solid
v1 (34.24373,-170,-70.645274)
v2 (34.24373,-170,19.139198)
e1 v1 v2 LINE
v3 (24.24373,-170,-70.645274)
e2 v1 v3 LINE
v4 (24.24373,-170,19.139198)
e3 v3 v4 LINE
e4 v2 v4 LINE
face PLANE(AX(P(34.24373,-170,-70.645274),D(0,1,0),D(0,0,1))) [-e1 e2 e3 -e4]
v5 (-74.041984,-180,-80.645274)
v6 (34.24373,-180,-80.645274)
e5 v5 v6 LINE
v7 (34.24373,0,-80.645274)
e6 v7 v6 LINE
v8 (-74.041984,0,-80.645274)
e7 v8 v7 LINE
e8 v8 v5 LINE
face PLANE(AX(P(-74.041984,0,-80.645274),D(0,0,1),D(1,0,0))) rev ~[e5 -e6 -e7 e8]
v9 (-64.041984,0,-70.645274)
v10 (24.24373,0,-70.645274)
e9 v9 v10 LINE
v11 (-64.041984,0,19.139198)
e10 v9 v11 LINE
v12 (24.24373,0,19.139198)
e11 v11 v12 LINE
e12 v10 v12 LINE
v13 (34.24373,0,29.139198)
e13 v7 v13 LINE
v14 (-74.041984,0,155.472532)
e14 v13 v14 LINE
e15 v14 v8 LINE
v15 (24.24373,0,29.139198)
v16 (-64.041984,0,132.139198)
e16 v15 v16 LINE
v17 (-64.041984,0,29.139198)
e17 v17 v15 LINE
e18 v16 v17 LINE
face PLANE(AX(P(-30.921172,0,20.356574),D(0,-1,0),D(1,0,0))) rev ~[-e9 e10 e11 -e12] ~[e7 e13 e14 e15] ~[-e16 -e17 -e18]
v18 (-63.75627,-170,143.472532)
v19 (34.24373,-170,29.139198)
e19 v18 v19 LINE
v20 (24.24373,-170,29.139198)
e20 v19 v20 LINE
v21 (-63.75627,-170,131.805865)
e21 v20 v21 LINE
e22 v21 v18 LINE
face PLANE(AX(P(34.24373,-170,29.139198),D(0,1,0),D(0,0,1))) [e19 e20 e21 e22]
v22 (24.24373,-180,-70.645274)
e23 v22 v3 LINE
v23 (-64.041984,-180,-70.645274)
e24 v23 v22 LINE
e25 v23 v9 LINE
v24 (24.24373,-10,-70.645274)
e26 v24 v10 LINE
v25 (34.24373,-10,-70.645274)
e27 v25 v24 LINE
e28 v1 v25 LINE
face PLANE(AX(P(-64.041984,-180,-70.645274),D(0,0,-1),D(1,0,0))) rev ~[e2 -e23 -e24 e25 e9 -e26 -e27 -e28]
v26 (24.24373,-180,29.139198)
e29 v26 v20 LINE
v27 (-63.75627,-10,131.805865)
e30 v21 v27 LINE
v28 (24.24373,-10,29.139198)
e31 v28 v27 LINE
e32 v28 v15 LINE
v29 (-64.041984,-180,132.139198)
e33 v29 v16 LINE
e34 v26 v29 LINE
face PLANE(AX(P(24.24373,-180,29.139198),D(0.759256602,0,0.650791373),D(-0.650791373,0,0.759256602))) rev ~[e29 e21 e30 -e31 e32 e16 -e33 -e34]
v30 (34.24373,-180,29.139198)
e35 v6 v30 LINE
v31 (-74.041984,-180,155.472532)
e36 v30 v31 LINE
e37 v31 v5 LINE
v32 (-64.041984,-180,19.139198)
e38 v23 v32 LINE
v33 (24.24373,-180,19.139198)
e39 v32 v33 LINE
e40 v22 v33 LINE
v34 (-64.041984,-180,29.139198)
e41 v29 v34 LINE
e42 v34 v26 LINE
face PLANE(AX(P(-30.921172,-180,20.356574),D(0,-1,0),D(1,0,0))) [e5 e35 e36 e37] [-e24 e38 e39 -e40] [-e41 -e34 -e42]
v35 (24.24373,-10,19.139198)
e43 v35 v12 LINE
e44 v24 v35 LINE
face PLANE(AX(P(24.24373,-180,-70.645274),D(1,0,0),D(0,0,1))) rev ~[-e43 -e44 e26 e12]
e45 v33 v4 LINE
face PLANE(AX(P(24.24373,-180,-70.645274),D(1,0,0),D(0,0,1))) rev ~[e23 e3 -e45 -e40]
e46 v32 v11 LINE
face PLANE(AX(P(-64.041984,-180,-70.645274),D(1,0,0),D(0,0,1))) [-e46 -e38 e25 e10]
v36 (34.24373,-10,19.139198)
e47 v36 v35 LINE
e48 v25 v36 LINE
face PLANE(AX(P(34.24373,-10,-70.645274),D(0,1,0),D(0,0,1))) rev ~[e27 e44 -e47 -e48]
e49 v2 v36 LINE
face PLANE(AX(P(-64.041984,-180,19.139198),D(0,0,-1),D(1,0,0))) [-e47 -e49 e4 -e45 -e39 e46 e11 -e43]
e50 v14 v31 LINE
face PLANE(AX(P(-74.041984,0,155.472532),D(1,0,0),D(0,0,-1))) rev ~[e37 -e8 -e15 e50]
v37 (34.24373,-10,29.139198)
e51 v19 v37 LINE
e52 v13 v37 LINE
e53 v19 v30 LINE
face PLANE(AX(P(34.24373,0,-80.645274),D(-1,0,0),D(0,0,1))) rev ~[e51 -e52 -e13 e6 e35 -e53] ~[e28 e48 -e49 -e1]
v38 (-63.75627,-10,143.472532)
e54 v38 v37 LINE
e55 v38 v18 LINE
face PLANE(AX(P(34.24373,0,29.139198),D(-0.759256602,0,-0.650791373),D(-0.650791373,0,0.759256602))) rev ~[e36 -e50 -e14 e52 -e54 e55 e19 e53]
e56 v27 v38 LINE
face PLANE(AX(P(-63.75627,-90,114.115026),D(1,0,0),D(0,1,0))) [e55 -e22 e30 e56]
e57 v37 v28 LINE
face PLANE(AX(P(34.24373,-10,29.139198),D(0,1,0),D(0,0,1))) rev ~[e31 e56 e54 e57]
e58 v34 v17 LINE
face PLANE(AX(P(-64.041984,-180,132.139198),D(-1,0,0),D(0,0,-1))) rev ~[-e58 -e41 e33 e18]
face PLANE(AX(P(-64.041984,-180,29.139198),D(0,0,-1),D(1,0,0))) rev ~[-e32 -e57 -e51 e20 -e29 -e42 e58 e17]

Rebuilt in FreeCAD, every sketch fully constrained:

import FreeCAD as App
import Part
import Sketcher

V = App.Vector

doc = App.newDocument("Part")
params = doc.addObject("Spreadsheet::Sheet", "Params")
for row, (alias, value) in enumerate([
    ("pad1_length", "180 mm"),
    ("sketch2_height", "103 mm"),
    ("pocket1_length", "294 mm"),
    ("sketch3_width", "160 mm"),
    ("pocket2_length", "98 mm"),
], start=1):
    params.set(f"A{row}", alias)
    params.set(f"B{row}", "=" + value)
    params.setAlias(f"B{row}", alias)

body = doc.addObject("PartDesign::Body", "Body")

sketch1 = body.newObject("Sketcher::SketchObject", "Sketch")
sketch1.AttachmentSupport = (doc.getObject("XZ_Plane"), [""])
sketch1.MapMode = "FlatFace"
sketch1.addGeometry([
    Part.LineSegment(V(-74, 155, 0), V(-74, -81, 0)),
    Part.LineSegment(V(-74, -81, 0), V(34, -81, 0)),
    Part.LineSegment(V(34, -81, 0), V(34, 29, 0)),
    Part.LineSegment(V(34, 29, 0), V(-74, 155, 0)),
], False)
sketch1.addConstraint([
    Sketcher.Constraint("Coincident", 0, 2, 1, 1),
    Sketcher.Constraint("Coincident", 1, 2, 2, 1),
    Sketcher.Constraint("Coincident", 2, 2, 3, 1),
    Sketcher.Constraint("Coincident", 3, 2, 0, 1),
    Sketcher.Constraint("Vertical", 0),
    Sketcher.Constraint("Horizontal", 1),
    Sketcher.Constraint("Vertical", 2),
    Sketcher.Constraint("DistanceY", -1, 1, 2, 2, 29.139198),
    Sketcher.Constraint("DistanceX", 1, 1, 1, 2, 108.285714),
    Sketcher.Constraint("DistanceY", 0, 2, 0, 1, 236.117806),
    Sketcher.Constraint("DistanceY", 2, 1, 2, 2, 109.784472),
    Sketcher.Constraint("DistanceX", -1, 1, 1, 2, 34.24373),
])
pad1 = body.newObject("PartDesign::Pad", "Pad")
pad1.Profile = sketch1
pad1.setExpression("Length", "Params.pad1_length")

sketch2 = body.newObject("Sketcher::SketchObject", "Sketch001")
sketch2.AttachmentSupport = (doc.getObject("XZ_Plane"), [""])
sketch2.MapMode = "FlatFace"
sketch2.AttachmentOffset = App.Placement(V(0, 0, 180), App.Rotation())
sketch2.addGeometry([
    Part.LineSegment(V(-64, 132, 0), V(-64, 29, 0)),
    Part.LineSegment(V(-64, 29, 0), V(24, 29, 0)),
    Part.LineSegment(V(24, 29, 0), V(-64, 132, 0)),
    Part.LineSegment(V(-64, 19, 0), V(-64, -71, 0)),
    Part.LineSegment(V(-64, -71, 0), V(24, -71, 0)),
    Part.LineSegment(V(24, -71, 0), V(24, 19, 0)),
    Part.LineSegment(V(24, 19, 0), V(-64, 19, 0)),
], False)
sketch2.addConstraint([
    Sketcher.Constraint("Coincident", 0, 2, 1, 1),
    Sketcher.Constraint("Coincident", 1, 2, 2, 1),
    Sketcher.Constraint("Coincident", 2, 2, 0, 1),
    Sketcher.Constraint("Coincident", 3, 2, 4, 1),
    Sketcher.Constraint("Coincident", 4, 2, 5, 1),
    Sketcher.Constraint("Coincident", 5, 2, 6, 1),
    Sketcher.Constraint("Coincident", 6, 2, 3, 1),
    Sketcher.Constraint("Vertical", 0),
    Sketcher.Constraint("Horizontal", 1),
    Sketcher.Constraint("Vertical", 3),
    Sketcher.Constraint("Horizontal", 4),
    Sketcher.Constraint("Vertical", 5),
    Sketcher.Constraint("Horizontal", 6),
    Sketcher.Constraint("Vertical", 2, 2, 3, 2),
    Sketcher.Constraint("Vertical", 1, 2, 4, 2),
    Sketcher.Constraint("DistanceY", 0, 2, 0, 1, 103.0),
    Sketcher.Constraint("DistanceY", 5, 2, 1, 2, 10.0),
    Sketcher.Constraint("DistanceY", -1, 1, 0, 2, 29.139198),
    Sketcher.Constraint("Distance", 2, 135.659011),
    Sketcher.Constraint("DistanceY", 3, 2, 3, 1, 89.784472),
    Sketcher.Constraint("DistanceX", -1, 1, 1, 2, 24.24373),
])
sketch2.setExpression("Constraints[15]", "Params.sketch2_height")
pocket1 = body.newObject("PartDesign::Pocket", "Pocket")
pocket1.Profile = sketch2
pocket1.setExpression("Length", "Params.pocket1_length")

sketch3 = body.newObject("Sketcher::SketchObject", "Sketch002")
sketch3.AttachmentSupport = (doc.getObject("YZ_Plane"), [""])
sketch3.MapMode = "FlatFace"
sketch3.AttachmentOffset = App.Placement(V(0, 0, 34.24373), App.Rotation())
sketch3.addGeometry([
    Part.LineSegment(V(-170, 19, 0), V(-170, -71, 0)),
    Part.LineSegment(V(-170, -71, 0), V(-10, -71, 0)),
    Part.LineSegment(V(-10, -71, 0), V(-10, 19, 0)),
    Part.LineSegment(V(-10, 19, 0), V(-170, 19, 0)),
    Part.LineSegment(V(-170, 199, 0), V(-170, 29, 0)),
    Part.LineSegment(V(-170, 29, 0), V(-10, 29, 0)),
    Part.LineSegment(V(-10, 29, 0), V(-10, 199, 0)),
    Part.LineSegment(V(-10, 199, 0), V(-170, 199, 0)),
], False)
sketch3.addConstraint([
    Sketcher.Constraint("Coincident", 0, 2, 1, 1),
    Sketcher.Constraint("Coincident", 1, 2, 2, 1),
    Sketcher.Constraint("Coincident", 2, 2, 3, 1),
    Sketcher.Constraint("Coincident", 3, 2, 0, 1),
    Sketcher.Constraint("Coincident", 4, 2, 5, 1),
    Sketcher.Constraint("Coincident", 5, 2, 6, 1),
    Sketcher.Constraint("Coincident", 6, 2, 7, 1),
    Sketcher.Constraint("Coincident", 7, 2, 4, 1),
    Sketcher.Constraint("Vertical", 0),
    Sketcher.Constraint("Horizontal", 1),
    Sketcher.Constraint("Vertical", 2),
    Sketcher.Constraint("Horizontal", 3),
    Sketcher.Constraint("Vertical", 4),
    Sketcher.Constraint("Horizontal", 5),
    Sketcher.Constraint("Vertical", 6),
    Sketcher.Constraint("Horizontal", 7),
    Sketcher.Constraint("Vertical", 3, 2, 4, 2),
    Sketcher.Constraint("Vertical", 2, 2, 5, 2),
    Sketcher.Constraint("DistanceX", 1, 1, 1, 2, 160.0),
    Sketcher.Constraint("DistanceX", 0, 2, -1, 1, 170.0),
    Sketcher.Constraint("DistanceY", 3, 2, 4, 2, 10.0),
    Sketcher.Constraint("DistanceY", -1, 1, 2, 2, 19.139198),
    Sketcher.Constraint("DistanceY", 0, 2, 0, 1, 89.784472),
    Sketcher.Constraint("DistanceY", 4, 2, 4, 1, 169.951655),
])
sketch3.setExpression("Constraints[18]", "Params.sketch3_width")
pocket2 = body.newObject("PartDesign::Pocket", "Pocket001")
pocket2.Profile = sketch3
pocket2.setExpression("Length", "Params.pocket2_length")

doc.recompute()
